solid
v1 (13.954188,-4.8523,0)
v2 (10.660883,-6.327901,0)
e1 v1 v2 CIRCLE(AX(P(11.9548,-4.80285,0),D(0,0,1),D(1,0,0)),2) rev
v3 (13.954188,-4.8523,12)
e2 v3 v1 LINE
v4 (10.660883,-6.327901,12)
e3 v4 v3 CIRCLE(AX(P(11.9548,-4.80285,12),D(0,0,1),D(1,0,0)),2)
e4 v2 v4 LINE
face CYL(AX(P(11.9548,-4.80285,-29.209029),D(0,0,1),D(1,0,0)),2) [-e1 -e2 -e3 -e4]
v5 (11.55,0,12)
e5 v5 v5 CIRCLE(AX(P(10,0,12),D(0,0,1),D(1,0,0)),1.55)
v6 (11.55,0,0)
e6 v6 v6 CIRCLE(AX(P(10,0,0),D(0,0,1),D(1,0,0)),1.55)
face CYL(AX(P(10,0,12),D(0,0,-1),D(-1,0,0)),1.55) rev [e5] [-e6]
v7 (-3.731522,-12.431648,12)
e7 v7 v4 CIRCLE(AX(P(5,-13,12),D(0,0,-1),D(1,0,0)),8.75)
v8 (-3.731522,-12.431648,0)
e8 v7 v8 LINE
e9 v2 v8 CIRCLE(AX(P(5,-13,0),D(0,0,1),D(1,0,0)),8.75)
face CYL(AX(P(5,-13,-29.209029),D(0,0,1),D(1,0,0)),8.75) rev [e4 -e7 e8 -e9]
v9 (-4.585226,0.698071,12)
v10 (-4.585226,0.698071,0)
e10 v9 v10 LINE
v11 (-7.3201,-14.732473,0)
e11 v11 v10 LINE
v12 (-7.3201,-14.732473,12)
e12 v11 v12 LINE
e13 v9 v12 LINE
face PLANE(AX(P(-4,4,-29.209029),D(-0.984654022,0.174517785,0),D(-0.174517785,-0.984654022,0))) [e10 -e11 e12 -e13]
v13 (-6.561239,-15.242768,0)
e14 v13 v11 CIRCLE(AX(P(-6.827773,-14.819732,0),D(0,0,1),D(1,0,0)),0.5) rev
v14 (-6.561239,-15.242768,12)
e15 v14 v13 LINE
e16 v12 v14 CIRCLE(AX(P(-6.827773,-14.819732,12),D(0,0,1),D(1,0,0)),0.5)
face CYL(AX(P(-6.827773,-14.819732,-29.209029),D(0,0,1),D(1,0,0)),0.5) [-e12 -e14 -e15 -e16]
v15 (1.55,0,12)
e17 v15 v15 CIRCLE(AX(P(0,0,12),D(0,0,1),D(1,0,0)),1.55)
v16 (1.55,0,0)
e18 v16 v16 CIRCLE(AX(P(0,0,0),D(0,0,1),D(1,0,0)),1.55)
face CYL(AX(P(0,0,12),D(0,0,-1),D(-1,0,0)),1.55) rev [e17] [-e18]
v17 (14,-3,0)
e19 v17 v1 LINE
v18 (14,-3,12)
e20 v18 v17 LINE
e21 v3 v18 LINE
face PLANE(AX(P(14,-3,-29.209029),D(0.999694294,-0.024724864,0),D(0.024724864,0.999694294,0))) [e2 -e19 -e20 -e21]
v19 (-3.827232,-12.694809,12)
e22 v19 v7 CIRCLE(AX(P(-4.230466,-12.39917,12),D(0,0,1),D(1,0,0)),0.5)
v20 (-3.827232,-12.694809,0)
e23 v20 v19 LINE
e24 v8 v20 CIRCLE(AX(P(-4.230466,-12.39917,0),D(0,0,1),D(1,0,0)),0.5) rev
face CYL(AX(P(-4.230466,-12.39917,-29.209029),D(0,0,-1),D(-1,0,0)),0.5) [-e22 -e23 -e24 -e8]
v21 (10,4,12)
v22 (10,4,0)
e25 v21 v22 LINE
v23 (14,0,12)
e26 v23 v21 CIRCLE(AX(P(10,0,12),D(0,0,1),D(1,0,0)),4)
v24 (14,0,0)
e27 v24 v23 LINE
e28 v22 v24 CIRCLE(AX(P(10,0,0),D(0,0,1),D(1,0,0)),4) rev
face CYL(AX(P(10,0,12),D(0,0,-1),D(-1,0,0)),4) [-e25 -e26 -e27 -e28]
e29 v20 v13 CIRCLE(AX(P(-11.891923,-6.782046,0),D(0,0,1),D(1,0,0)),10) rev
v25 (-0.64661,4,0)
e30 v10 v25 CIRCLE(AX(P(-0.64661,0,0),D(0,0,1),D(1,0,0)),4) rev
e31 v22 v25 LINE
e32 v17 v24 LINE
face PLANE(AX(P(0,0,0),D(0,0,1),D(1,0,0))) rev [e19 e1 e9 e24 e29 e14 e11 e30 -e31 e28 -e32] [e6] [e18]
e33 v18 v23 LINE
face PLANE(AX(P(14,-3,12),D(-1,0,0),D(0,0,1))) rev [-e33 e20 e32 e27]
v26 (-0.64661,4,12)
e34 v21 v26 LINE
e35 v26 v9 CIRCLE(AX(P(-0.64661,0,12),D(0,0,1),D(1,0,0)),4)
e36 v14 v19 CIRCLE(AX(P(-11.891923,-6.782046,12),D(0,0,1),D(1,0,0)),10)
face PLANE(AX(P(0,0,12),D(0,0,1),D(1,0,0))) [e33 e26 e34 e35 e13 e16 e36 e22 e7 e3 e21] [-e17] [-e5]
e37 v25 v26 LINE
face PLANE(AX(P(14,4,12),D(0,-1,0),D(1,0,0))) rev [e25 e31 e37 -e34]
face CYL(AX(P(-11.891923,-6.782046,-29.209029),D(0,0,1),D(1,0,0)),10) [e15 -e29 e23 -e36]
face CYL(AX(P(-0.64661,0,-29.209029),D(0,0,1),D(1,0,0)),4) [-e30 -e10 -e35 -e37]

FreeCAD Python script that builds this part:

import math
import FreeCAD as App
import Part
import Sketcher
Q = App.Units.Quantity


def edges_at(feature, points):
    """Names of the edges that pass closest to the given points."""
    edges = feature.Shape.Edges
    near = lambda p: min(range(len(edges)), key=lambda i: edges[i].distToShape(Part.Vertex(*p))[0])
    return sorted({f"Edge{near(p) + 1}" for p in points})


def add_polygon(sketch, points):
    """Adds a closed chain of lines whose ends are joined by coincident constraints."""
    first, n = sketch.GeometryCount, len(points)
    for a, b in zip(points, points[1:] + points[:1]):
        sketch.addGeometry(Part.LineSegment(App.Vector(*a, 0), App.Vector(*b, 0)), False)
    for i in range(n):
        sketch.addConstraint(Sketcher.Constraint("Coincident", first + i, 2, first + (i + 1) % n, 1))

doc = App.newDocument("Part")
body = doc.addObject("PartDesign::Body", "Body")

# Sketch on XY plane
sketch1 = doc.addObject("Sketcher::SketchObject", "Sketch")
body.addObject(sketch1)
sketch1.AttachmentSupport = (doc.XY_Plane, [""])
sketch1.MapMode = "FlatFace"
add_polygon(sketch1, [(-4, -3), (14, -3), (14, 4), (-4, 4)])  # lines 0-3
sketch1.addGeometry(Part.Circle(App.Vector(10, 0, 0), App.Vector(0, 0, 1), 1.55), False)  # 4
sketch1.addGeometry(Part.Circle(App.Vector(0, 0, 0), App.Vector(0, 0, 1), 1.55), False)  # 5
sketch1.addConstraint([
    Sketcher.Constraint("Horizontal", 0),
    Sketcher.Constraint("Vertical", 1),
    Sketcher.Constraint("Horizontal", 2),
    Sketcher.Constraint("Vertical", 3),
    Sketcher.Constraint("Coincident", 5, 3, -1, 1),
    Sketcher.Constraint("Equal", 4, 5),
    Sketcher.Constraint("PointOnObject", 4, 3, -1),
    Sketcher.Constraint("Diameter", 4, Q("3.1 mm")),
    Sketcher.Constraint("DistanceX", 0, 1, 0, 2, Q("18 mm")),
    Sketcher.Constraint("DistanceY", 1, 1, 1, 2, Q("7 mm")),
    Sketcher.Constraint("DistanceX", -1, 1, 4, 3, Q("10 mm")),
    Sketcher.Constraint("DistanceX", -1, 1, 0, 2, Q("14 mm")),
    Sketcher.Constraint("DistanceY", 0, 2, -1, 1, Q("3 mm")),
])
pad1 = doc.addObject("PartDesign::Pad", "Pad")
body.addObject(pad1)
pad1.Profile = sketch1
pad1.Length = 12

# Sketch on XY plane
sketch2 = doc.addObject("Sketcher::SketchObject", "Sketch001")
body.addObject(sketch2)
sketch2.AttachmentSupport = (doc.XY_Plane, [""])
sketch2.MapMode = "FlatFace"
sketch2.AttachmentOffset = App.Placement(App.Vector(0, 0, 12), App.Rotation())
sketch2.addGeometry([
    Part.LineSegment(App.Vector(-4, -3, 0), App.Vector(-4, 4, 0)),  # 0
    Part.LineSegment(App.Vector(-4, 4, 0), App.Vector(-7.503586, -15.76773, 0)),  # 1
    Part.ArcOfCircle(Part.Circle(App.Vector(-11.891923, -6.782046, 0), App.Vector(0, 0, 1), 10), math.radians(-63.970514), math.radians(-35.3896)),  # 2
    Part.ArcOfCircle(Part.Circle(App.Vector(5, -13, 0), App.Vector(0, 0, 1), 8.75), math.radians(-1.416775), math.radians(177.205337)),  # 3
    Part.LineSegment(App.Vector(13.747325, -13.216343, 0), App.Vector(14, -3, 0)),  # 4
    Part.LineSegment(App.Vector(14, -3, 0), App.Vector(-4, -3, 0)),  # 5
], False)
sketch2.addConstraint([
    Sketcher.Constraint("Coincident", 0, 2, 1, 1),
    Sketcher.Constraint("Coincident", 1, 2, 2, 1),
    Sketcher.Constraint("Coincident", 2, 2, 3, 2),
    Sketcher.Constraint("Tangent", 3, 1, 4, 1),
    Sketcher.Constraint("Coincident", 4, 2, 5, 1),
    Sketcher.Constraint("Coincident", 5, 2, 0, 1),
    Sketcher.Constraint("Vertical", 0),
    Sketcher.Constraint("Horizontal", 5),
    Sketcher.Constraint("Radius", 2, Q("10 mm")),
    Sketcher.Constraint("DistanceX", 5, 2, 5, 1, Q("18 mm")),
    Sketcher.Constraint("DistanceY", 0, 1, 0, 2, Q("7 mm")),
    Sketcher.Constraint("Radius", 3, Q("8.75 mm")),
    Sketcher.Constraint("DistanceX", -1, 1, 3, 3, Q("5 mm")),
    Sketcher.Constraint("DistanceY", 3, 3, -1, 1, Q("13 mm")),
    Sketcher.Constraint("DistanceX", 0, 2, -1, 1, Q("4 mm")),
    Sketcher.Constraint("DistanceY", -1, 1, 0, 2, Q("4 mm")),
    Sketcher.Constraint("DistanceY", 1, 2, -1, 1, Q("15.76773 mm")),
    Sketcher.Constraint("DistanceY", 2, 2, -1, 1, Q("12.573379 mm")),
    Sketcher.Constraint("DistanceX", 2, 3, 2, 2, Q("8.152329 mm")),
])
pad2 = doc.addObject("PartDesign::Pad", "Pad001")
body.addObject(pad2)
pad2.Profile = sketch2
pad2.Length = 12
pad2.Reversed = True
doc.recompute()

fillet = doc.addObject("PartDesign::Fillet", "Fillet")
body.addObject(fillet)
fillet.Base = (pad2, edges_at(pad2, [(-7.504, -15.768, 6), (-3.74, -12.573, 6)]))
fillet.Radius = 0.5
doc.recompute()

fillet2 = doc.addObject("PartDesign::Fillet", "Fillet001")
body.addObject(fillet2)
fillet2.Base = (fillet, edges_at(fillet, [(-4, 4, 6), (14, 4, 6)]))
fillet2.Radius = 4
doc.recompute()

fillet3 = doc.addObject("PartDesign::Fillet", "Fillet002")
body.addObject(fillet3)
fillet3.Base = (fillet2, edges_at(fillet2, [(13.747, -13.216, 6)]))
fillet3.Radius = 2

doc.recompute()
